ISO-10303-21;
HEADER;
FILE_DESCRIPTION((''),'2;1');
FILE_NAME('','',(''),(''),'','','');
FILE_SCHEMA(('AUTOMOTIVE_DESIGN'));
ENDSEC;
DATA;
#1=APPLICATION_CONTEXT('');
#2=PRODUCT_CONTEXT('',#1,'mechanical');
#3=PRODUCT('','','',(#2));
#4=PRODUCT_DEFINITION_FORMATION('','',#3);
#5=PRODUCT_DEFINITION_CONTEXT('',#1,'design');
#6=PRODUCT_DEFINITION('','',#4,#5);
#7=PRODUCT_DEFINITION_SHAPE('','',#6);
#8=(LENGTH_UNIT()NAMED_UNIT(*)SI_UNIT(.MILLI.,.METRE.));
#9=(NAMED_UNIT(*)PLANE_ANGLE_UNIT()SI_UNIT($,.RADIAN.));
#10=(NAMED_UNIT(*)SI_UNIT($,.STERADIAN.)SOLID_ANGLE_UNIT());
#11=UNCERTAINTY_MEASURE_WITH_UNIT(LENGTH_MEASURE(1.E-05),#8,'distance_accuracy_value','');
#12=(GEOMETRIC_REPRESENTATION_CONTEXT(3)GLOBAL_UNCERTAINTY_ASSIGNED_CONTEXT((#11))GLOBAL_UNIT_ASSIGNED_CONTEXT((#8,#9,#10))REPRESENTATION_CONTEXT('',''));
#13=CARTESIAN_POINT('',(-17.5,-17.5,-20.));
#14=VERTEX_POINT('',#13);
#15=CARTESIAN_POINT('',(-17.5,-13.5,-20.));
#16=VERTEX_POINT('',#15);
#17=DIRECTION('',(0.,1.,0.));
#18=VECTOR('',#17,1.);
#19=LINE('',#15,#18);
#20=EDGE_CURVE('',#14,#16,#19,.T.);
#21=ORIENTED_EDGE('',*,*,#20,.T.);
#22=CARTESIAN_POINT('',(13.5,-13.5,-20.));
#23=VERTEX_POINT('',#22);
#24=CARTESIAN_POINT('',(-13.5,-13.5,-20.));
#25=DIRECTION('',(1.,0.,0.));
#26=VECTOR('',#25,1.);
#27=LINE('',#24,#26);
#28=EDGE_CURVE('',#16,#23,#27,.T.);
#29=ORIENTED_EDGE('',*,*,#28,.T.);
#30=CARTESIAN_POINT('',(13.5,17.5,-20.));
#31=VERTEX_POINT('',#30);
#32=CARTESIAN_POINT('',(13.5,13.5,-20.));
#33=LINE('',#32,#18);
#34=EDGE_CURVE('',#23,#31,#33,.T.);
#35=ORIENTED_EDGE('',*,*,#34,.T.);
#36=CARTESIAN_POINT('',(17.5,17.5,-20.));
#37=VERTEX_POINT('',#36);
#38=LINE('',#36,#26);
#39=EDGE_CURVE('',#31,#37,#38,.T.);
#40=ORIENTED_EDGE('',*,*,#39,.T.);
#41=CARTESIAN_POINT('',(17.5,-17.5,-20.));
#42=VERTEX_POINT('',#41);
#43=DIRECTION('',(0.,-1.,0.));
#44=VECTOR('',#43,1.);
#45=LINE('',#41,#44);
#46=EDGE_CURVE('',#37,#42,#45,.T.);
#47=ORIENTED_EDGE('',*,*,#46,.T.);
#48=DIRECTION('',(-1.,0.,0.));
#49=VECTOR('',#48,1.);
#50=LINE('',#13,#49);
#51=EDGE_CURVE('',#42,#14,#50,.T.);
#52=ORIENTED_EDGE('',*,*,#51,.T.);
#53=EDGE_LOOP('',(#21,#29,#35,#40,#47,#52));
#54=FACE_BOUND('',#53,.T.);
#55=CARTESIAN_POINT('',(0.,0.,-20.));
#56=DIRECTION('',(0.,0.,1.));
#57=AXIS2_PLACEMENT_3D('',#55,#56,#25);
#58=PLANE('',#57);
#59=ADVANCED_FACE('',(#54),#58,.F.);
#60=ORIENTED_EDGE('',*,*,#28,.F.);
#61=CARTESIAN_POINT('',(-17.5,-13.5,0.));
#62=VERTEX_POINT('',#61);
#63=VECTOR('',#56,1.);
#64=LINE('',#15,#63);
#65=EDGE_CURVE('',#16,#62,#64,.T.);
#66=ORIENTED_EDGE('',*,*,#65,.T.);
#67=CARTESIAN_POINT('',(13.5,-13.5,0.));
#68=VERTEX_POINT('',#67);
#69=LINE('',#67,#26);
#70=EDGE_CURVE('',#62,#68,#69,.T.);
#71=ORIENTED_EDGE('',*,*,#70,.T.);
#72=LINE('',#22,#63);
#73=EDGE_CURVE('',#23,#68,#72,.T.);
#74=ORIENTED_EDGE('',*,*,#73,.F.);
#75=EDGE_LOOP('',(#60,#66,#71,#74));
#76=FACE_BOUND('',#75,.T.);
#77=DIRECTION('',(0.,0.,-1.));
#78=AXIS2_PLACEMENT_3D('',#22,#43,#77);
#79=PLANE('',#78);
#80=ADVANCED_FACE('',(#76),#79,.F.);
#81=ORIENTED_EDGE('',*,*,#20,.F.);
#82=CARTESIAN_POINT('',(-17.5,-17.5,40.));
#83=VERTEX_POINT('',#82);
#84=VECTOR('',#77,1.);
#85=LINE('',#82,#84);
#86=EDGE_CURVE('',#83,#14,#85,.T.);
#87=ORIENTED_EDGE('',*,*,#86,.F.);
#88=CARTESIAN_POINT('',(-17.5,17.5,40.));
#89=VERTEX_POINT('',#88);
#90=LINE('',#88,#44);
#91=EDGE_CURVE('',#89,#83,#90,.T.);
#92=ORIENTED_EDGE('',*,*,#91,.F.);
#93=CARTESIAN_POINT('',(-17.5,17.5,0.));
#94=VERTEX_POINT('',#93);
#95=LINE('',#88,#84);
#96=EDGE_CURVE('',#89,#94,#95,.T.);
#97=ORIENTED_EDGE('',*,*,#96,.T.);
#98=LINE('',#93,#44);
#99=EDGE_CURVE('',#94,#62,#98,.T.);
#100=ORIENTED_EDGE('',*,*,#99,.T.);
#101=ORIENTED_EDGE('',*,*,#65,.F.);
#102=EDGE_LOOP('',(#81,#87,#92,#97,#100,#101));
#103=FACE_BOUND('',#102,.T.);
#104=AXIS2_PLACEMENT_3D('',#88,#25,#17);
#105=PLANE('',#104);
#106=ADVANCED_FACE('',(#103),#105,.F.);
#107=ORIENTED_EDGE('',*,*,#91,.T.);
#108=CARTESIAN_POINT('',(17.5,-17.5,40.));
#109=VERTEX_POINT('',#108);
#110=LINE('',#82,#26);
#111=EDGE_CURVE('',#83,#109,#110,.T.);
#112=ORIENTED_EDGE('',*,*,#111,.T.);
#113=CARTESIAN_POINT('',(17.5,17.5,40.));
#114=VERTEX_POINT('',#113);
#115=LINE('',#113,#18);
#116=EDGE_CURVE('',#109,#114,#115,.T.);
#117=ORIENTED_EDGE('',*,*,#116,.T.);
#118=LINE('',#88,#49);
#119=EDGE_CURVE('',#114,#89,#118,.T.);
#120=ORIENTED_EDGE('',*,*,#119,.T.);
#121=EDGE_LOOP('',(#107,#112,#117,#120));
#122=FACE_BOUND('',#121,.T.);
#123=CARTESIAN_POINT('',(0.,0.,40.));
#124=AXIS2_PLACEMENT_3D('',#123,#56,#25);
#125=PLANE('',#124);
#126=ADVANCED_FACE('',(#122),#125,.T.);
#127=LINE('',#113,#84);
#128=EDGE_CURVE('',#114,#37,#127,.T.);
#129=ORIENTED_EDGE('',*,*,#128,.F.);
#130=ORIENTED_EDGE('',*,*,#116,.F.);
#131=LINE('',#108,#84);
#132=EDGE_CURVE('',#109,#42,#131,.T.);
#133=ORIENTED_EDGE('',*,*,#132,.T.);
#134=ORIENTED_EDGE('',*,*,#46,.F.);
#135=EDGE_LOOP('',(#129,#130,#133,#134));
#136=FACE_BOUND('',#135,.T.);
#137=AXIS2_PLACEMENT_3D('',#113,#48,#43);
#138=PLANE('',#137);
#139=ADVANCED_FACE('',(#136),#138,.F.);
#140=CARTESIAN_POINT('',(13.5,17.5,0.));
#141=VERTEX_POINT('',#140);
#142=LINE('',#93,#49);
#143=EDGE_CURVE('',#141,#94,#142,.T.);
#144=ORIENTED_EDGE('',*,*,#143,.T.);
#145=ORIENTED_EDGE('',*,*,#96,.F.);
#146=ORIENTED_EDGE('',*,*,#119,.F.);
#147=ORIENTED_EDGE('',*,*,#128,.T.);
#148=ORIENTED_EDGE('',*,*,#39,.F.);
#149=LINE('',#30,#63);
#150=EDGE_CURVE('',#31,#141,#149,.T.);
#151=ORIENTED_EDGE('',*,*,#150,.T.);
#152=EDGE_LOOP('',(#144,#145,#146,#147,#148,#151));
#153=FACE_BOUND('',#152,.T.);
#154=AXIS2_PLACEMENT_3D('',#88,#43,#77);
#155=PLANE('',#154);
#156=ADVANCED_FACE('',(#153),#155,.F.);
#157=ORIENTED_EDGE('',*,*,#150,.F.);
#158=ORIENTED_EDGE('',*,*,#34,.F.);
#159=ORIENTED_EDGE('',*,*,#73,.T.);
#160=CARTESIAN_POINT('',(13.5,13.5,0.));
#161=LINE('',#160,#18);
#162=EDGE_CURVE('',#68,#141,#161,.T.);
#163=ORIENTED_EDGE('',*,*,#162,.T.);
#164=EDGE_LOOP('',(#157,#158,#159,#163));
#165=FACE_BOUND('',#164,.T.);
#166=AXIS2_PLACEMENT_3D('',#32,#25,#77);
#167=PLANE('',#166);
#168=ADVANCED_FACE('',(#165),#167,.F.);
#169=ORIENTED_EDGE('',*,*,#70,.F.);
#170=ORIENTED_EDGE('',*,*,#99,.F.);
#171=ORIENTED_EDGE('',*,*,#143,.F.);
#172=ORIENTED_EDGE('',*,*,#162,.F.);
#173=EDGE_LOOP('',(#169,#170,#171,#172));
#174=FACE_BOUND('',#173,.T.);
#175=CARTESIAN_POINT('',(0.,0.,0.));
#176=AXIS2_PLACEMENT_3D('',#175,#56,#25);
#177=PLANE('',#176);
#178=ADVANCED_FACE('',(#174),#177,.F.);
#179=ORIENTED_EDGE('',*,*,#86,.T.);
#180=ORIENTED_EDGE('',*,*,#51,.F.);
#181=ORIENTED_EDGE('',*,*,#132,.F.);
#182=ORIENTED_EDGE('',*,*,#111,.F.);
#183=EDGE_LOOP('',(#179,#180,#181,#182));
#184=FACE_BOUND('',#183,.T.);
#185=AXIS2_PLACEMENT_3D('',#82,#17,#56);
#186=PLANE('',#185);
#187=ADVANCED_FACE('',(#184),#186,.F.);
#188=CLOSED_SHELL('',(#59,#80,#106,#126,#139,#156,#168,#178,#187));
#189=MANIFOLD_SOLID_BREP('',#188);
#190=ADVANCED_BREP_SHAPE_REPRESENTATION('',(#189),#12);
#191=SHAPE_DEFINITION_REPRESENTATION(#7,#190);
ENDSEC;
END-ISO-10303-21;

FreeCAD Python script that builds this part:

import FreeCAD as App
import Part
import Sketcher
Q = App.Units.Quantity


def add_polygon(sketch, points):
    """Adds a closed chain of lines whose ends are joined by coincident constraints."""
    first, n = sketch.GeometryCount, len(points)
    for a, b in zip(points, points[1:] + points[:1]):
        sketch.addGeometry(Part.LineSegment(App.Vector(*a, 0), App.Vector(*b, 0)), False)
    for i in range(n):
        sketch.addConstraint(Sketcher.Constraint("Coincident", first + i, 2, first + (i + 1) % n, 1))

doc = App.newDocument("Part")
body = doc.addObject("PartDesign::Body", "Body")

sketch1 = body.newObject("Sketcher::SketchObject", "Sketch")
sketch1.AttachmentSupport = (doc.getObject("XY_Plane"), [""])
sketch1.MapMode = "FlatFace"
add_polygon(sketch1, [(-18, 18), (-18, -18), (18, -18), (18, 18)])
sketch1.addConstraint(Sketcher.Constraint("Vertical", 0))
sketch1.addConstraint(Sketcher.Constraint("Horizontal", 1))
sketch1.addConstraint(Sketcher.Constraint("Vertical", 2))
sketch1.addConstraint(Sketcher.Constraint("Horizontal", 3))
sketch1.addConstraint(Sketcher.Constraint("Symmetric", 0, 2, 2, 2, -1, 1))
sketch1.addConstraint(Sketcher.Constraint("Equal", 3, 0))
sketch1.addConstraint(Sketcher.Constraint("DistanceX", 1, 1, 1, 2, Q("35 mm")))
pad1 = body.newObject("PartDesign::Pad", "Pad")
pad1.Profile = sketch1
pad1.Length = 40

sketch2 = body.newObject("Sketcher::SketchObject", "Sketch001")
sketch2.AttachmentSupport = (doc.getObject("XY_Plane"), [""])
sketch2.MapMode = "FlatFace"
add_polygon(sketch2, [(13.5, 17.5), (17.5, 17.5), (17.5, -17.5), (-17.5, -17.5), (-17.5, -13.5), (13.5, -13.5)])
sketch2.addConstraint(Sketcher.Constraint("Horizontal", 0))
sketch2.addConstraint(Sketcher.Constraint("Vertical", 1))
sketch2.addConstraint(Sketcher.Constraint("Horizontal", 2))
sketch2.addConstraint(Sketcher.Constraint("Vertical", 3))
sketch2.addConstraint(Sketcher.Constraint("Horizontal", 4))
sketch2.addConstraint(Sketcher.Constraint("Vertical", 5))
sketch2.addConstraint(Sketcher.Constraint("Symmetric", 0, 2, 2, 2, -1, 1))
sketch2.addConstraint(Sketcher.Constraint("Equal", 2, 1))
sketch2.addConstraint(Sketcher.Constraint("Equal", 0, 3))
sketch2.addConstraint(Sketcher.Constraint("DistanceX", 0, 1, 0, 2, Q("4 mm")))
sketch2.addConstraint(Sketcher.Constraint("DistanceX", 2, 2, 2, 1, Q("35 mm")))
pad2 = body.newObject("PartDesign::Pad", "Pad001")
pad2.Profile = sketch2
pad2.Length = 20
pad2.Reversed = True

doc.recompute()
